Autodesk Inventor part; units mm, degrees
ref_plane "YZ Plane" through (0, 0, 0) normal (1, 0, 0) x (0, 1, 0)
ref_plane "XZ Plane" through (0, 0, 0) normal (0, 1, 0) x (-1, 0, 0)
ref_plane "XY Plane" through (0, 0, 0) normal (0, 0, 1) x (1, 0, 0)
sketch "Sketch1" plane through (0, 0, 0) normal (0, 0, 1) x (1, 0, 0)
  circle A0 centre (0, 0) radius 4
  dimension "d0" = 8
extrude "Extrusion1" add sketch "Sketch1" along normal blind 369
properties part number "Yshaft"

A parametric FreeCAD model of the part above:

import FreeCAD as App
import Part
import Sketcher
Q = App.Units.Quantity

doc = App.newDocument("Part")
params = doc.addObject("Spreadsheet::Sheet", "Params")
for row, (alias, value) in enumerate([
    ("sketch1_diameter", "8 mm"),
    ("pad1_length", "369 mm"),
], start=1):
    params.set(f"A{row}", alias)
    params.set(f"B{row}", "=" + value)
    params.setAlias(f"B{row}", alias)

body = doc.addObject("PartDesign::Body", "Body")

sketch1 = body.newObject("Sketcher::SketchObject", "Sketch")
sketch1.AttachmentSupport = (doc.getObject("XY_Plane"), [""])
sketch1.MapMode = "FlatFace"
sketch1.addGeometry(Part.Circle(App.Vector(0, 0, 0), App.Vector(0, 0, 1), 4), False)
sketch1.addConstraint([
    Sketcher.Constraint("Coincident", 0, 3, -1, 1),
    Sketcher.Constraint("Diameter", 0, Q("8 mm")),
])
sketch1.setExpression("Constraints[1]", "Params.sketch1_diameter")
pad1 = body.newObject("PartDesign::Pad", "Pad")
pad1.Profile = sketch1
pad1.setExpression("Length", "Params.pad1_length")

doc.recompute()
